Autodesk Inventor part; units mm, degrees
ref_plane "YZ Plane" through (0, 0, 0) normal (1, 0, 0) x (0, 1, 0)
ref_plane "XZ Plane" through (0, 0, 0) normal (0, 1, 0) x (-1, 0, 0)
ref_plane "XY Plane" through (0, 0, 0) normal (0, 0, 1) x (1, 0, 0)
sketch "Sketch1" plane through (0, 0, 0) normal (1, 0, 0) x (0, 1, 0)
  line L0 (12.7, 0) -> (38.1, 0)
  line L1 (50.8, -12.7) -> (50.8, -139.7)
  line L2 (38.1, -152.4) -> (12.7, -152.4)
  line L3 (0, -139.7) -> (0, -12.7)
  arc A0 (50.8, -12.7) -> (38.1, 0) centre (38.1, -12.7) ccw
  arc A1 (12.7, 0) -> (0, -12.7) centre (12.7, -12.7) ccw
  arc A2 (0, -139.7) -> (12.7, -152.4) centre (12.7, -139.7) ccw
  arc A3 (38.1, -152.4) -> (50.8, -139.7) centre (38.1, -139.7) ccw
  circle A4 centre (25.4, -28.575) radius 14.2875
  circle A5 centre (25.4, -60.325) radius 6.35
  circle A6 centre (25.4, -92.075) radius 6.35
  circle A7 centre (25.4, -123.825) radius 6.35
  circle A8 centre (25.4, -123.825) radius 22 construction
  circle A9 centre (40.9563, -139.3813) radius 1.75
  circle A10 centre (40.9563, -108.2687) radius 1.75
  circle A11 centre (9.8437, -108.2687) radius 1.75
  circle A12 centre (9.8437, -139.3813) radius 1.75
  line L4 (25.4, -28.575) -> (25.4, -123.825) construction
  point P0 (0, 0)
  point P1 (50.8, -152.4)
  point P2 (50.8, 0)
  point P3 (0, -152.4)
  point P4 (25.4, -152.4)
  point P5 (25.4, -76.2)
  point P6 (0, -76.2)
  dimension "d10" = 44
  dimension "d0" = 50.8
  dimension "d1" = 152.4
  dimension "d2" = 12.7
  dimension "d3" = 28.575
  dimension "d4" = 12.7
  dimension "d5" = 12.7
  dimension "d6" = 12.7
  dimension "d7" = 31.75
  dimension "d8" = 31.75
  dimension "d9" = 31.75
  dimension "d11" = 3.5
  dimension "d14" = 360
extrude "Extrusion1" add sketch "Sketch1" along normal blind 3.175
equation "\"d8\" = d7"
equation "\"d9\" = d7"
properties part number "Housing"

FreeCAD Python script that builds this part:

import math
import FreeCAD as App
import Part
import Sketcher
from FreeCAD import Vector
Q = App.Units.Quantity

doc = App.newDocument("Part")
body = doc.addObject("PartDesign::Body", "Body")

# Sketch on YZ plane
sketch1 = body.newObject("Sketcher::SketchObject", "Sketch")
sketch1.AttachmentSupport = (doc.getObject("YZ_Plane"), [""])
sketch1.MapMode = "FlatFace"
sketch1.addGeometry(Part.LineSegment(Vector(38.1, 0, 0), Vector(12.7, 0, 0)), False)
sketch1.addGeometry(Part.ArcOfCircle(Part.Circle(Vector(12.7, -12.7, 0), Vector(0, 0, 1), 12.7), math.radians(90), math.radians(180)), False)
sketch1.addGeometry(Part.LineSegment(Vector(0, -12.7, 0), Vector(0, -139.7, 0)), False)
sketch1.addGeometry(Part.ArcOfCircle(Part.Circle(Vector(12.7, -139.7, 0), Vector(0, 0, 1), 12.7), math.radians(180), math.radians(270)), False)
sketch1.addGeometry(Part.LineSegment(Vector(12.7, -152.4, 0), Vector(38.1, -152.4, 0)), False)
sketch1.addGeometry(Part.ArcOfCircle(Part.Circle(Vector(38.1, -139.7, 0), Vector(0, 0, 1), 12.7), math.radians(-90), math.radians(0)), False)
sketch1.addGeometry(Part.LineSegment(Vector(50.8, -139.7, 0), Vector(50.8, -12.7, 0)), False)
sketch1.addGeometry(Part.ArcOfCircle(Part.Circle(Vector(38.1, -12.7, 0), Vector(0, 0, 1), 12.7), math.radians(0), math.radians(90)), False)
sketch1.addGeometry(Part.Circle(Vector(9.8437, -139.3813, 0), Vector(0, 0, 1), 1.75), False)
sketch1.addGeometry(Part.Circle(Vector(25.4, -123.825, 0), Vector(0, 0, 1), 6.35), False)
sketch1.addGeometry(Part.Circle(Vector(9.8437, -108.2687, 0), Vector(0, 0, 1), 1.75), False)
sketch1.addGeometry(Part.Circle(Vector(25.4, -92.075, 0), Vector(0, 0, 1), 6.35), False)
sketch1.addGeometry(Part.Circle(Vector(40.9563, -139.3813, 0), Vector(0, 0, 1), 1.75), False)
sketch1.addGeometry(Part.Circle(Vector(40.9563, -108.2687, 0), Vector(0, 0, 1), 1.75), False)
sketch1.addGeometry(Part.Circle(Vector(25.4, -60.325, 0), Vector(0, 0, 1), 6.35), False)
sketch1.addGeometry(Part.Circle(Vector(25.4, -28.575, 0), Vector(0, 0, 1), 14.2875), False)
sketch1.addConstraint(Sketcher.Constraint("Tangent", 0, 2, 1, 1))
sketch1.addConstraint(Sketcher.Constraint("Tangent", 1, 2, 2, 1))
sketch1.addConstraint(Sketcher.Constraint("Tangent", 2, 2, 3, 1))
sketch1.addConstraint(Sketcher.Constraint("Tangent", 3, 2, 4, 1))
sketch1.addConstraint(Sketcher.Constraint("Tangent", 4, 2, 5, 1))
sketch1.addConstraint(Sketcher.Constraint("Tangent", 5, 2, 6, 1))
sketch1.addConstraint(Sketcher.Constraint("Tangent", 6, 2, 7, 1))
sketch1.addConstraint(Sketcher.Constraint("Tangent", 7, 2, 0, 1))
sketch1.addConstraint(Sketcher.Constraint("Horizontal", 0))
sketch1.addConstraint(Sketcher.Constraint("Vertical", 2))
sketch1.addConstraint(Sketcher.Constraint("Horizontal", 4))
sketch1.addConstraint(Sketcher.Constraint("Vertical", 6))
sketch1.addConstraint(Sketcher.Constraint("Equal", 1, 3))
sketch1.addConstraint(Sketcher.Constraint("Equal", 3, 5))
sketch1.addConstraint(Sketcher.Constraint("Equal", 5, 7))
sketch1.addConstraint(Sketcher.Constraint("Equal", 8, 10))
sketch1.addConstraint(Sketcher.Constraint("Equal", 9, 11))
sketch1.addConstraint(Sketcher.Constraint("Equal", 10, 12))
sketch1.addConstraint(Sketcher.Constraint("Equal", 12, 13))
sketch1.addConstraint(Sketcher.Constraint("Equal", 11, 14))
sketch1.addConstraint(Sketcher.Constraint("PointOnObject", 0, 2, -1))
sketch1.addConstraint(Sketcher.Constraint("PointOnObject", 1, 2, -2))
sketch1.addConstraint(Sketcher.Constraint("Horizontal", 8, 3, 12, 3))
sketch1.addConstraint(Sketcher.Constraint("Horizontal", 10, 3, 13, 3))
sketch1.addConstraint(Sketcher.Constraint("Vertical", 8, 3, 10, 3))
sketch1.addConstraint(Sketcher.Constraint("Vertical", 9, 3, 11, 3))
sketch1.addConstraint(Sketcher.Constraint("Vertical", 12, 3, 13, 3))
sketch1.addConstraint(Sketcher.Constraint("Vertical", 11, 3, 14, 3))
sketch1.addConstraint(Sketcher.Constraint("Vertical", 14, 3, 15, 3))
sketch1.addConstraint(Sketcher.Constraint("Diameter", 9, Q("0.5 in")))
sketch1.addConstraint(Sketcher.Constraint("Radius", 1, Q("0.5 in")))
sketch1.addConstraint(Sketcher.Constraint("Diameter", 15, Q("1.125 in")))
sketch1.addConstraint(Sketcher.Constraint("DistanceY", 3, 2, -1, 1, Q("6 in")))
sketch1.addConstraint(Sketcher.Constraint("DistanceX", -1, 1, 5, 2, Q("2 in")))
sketch1.addConstraint(Sketcher.Constraint("Diameter", 8, Q("0.1378 in")))
sketch1.addConstraint(Sketcher.Constraint("DistanceX", 3, 3, 9, 3, Q("0.5 in")))
sketch1.addConstraint(Sketcher.Constraint("DistanceY", 9, 3, 11, 3, Q("1.25 in")))
sketch1.addConstraint(Sketcher.Constraint("DistanceY", 11, 3, 14, 3, Q("1.25 in")))
sketch1.addConstraint(Sketcher.Constraint("DistanceY", 14, 3, 15, 3, Q("1.25 in")))
sketch1.addConstraint(Sketcher.Constraint("DistanceY", 15, 3, -1, 1, Q("1.125 in")))
sketch1.addConstraint(Sketcher.Constraint("DistanceY", 8, 3, 10, 3, Q("1.2249 in")))
sketch1.addConstraint(Sketcher.Constraint("DistanceX", 8, 3, 12, 3, Q("1.2249 in")))
sketch1.addConstraint(Sketcher.Constraint("DistanceX", -1, 1, 8, 3, 9.8437))
sketch1.addConstraint(Sketcher.Constraint("DistanceY", 8, 3, -1, 1, 139.3813))
pad1 = body.newObject("PartDesign::Pad", "Pad")
pad1.Profile = sketch1
pad1.Length = Q("0.125 in")

doc.recompute()
